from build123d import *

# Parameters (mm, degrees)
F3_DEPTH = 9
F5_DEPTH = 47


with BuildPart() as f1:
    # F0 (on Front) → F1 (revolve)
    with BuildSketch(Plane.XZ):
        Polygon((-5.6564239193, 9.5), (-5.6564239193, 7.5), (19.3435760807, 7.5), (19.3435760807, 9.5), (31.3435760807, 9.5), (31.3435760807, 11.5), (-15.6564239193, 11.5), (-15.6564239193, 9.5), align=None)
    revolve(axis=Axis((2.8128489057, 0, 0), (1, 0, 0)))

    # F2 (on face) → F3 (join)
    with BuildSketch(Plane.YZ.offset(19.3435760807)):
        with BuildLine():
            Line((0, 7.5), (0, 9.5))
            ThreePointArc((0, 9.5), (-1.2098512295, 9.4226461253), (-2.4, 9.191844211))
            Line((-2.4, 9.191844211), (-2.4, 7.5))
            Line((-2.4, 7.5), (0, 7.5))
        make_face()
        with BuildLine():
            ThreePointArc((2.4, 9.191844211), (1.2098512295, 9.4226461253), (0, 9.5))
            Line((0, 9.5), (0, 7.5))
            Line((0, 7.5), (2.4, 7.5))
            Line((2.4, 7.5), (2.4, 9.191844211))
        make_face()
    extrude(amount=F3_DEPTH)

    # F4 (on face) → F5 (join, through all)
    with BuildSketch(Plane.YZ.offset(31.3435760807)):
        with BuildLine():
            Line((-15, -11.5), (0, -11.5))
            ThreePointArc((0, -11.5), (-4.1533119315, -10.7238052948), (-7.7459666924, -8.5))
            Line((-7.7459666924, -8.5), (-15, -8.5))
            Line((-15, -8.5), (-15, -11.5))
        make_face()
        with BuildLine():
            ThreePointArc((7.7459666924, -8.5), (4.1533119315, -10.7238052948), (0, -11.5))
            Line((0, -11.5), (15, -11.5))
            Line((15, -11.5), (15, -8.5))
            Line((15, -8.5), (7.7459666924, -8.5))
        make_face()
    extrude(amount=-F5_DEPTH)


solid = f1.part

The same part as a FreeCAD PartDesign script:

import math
import FreeCAD as App
import Part
import Sketcher

V = App.Vector

doc = App.newDocument("Part")
params = doc.addObject("Spreadsheet::Sheet", "Params")
for row, (alias, value) in enumerate([
    ("sketch1_width", "25 mm"),
    ("sketch1_width2", "12 mm"),
    ("sketch1_width3", "47 mm"),
    ("sketch1_height", "2 mm"),
    ("revolution_angle", "360 deg"),
    ("sketch2_radius", "9.5 mm"),
    ("sketch2_width", "4.8 mm"),
    ("pad1_length", "9 mm"),
    ("sketch3_radius", "11.5 mm"),
    ("sketch3_width", "15 mm"),
    ("sketch3_height", "3 mm"),
], start=1):
    params.set(f"A{row}", alias)
    params.set(f"B{row}", "=" + value)
    params.setAlias(f"B{row}", alias)

body = doc.addObject("PartDesign::Body", "Body")

# Sketch on XZ plane
sketch1 = body.newObject("Sketcher::SketchObject", "Sketch")
sketch1.AttachmentSupport = (doc.getObject("XZ_Plane"), [""])
sketch1.MapMode = "FlatFace"
sketch1.addGeometry([
    Part.LineSegment(V(-5.7, 9.5, 0), V(-5.7, 7.5, 0)),  # 0
    Part.LineSegment(V(-5.7, 7.5, 0), V(19.3, 7.5, 0)),  # 1
    Part.LineSegment(V(19.3, 7.5, 0), V(19.3, 9.5, 0)),  # 2
    Part.LineSegment(V(19.3, 9.5, 0), V(31.3, 9.5, 0)),  # 3
    Part.LineSegment(V(31.3, 9.5, 0), V(31.3, 11.5, 0)),  # 4
    Part.LineSegment(V(31.3, 11.5, 0), V(-15.7, 11.5, 0)),  # 5
    Part.LineSegment(V(-15.7, 11.5, 0), V(-15.7, 9.5, 0)),  # 6
    Part.LineSegment(V(-15.7, 9.5, 0), V(-5.7, 9.5, 0)),  # 7
], False)
sketch1.addConstraint([
    Sketcher.Constraint("Coincident", 0, 2, 1, 1),
    Sketcher.Constraint("Coincident", 1, 2, 2, 1),
    Sketcher.Constraint("Coincident", 2, 2, 3, 1),
    Sketcher.Constraint("Coincident", 3, 2, 4, 1),
    Sketcher.Constraint("Coincident", 4, 2, 5, 1),
    Sketcher.Constraint("Coincident", 5, 2, 6, 1),
    Sketcher.Constraint("Coincident", 6, 2, 7, 1),
    Sketcher.Constraint("Coincident", 7, 2, 0, 1),
    Sketcher.Constraint("Vertical", 0),
    Sketcher.Constraint("Horizontal", 1),
    Sketcher.Constraint("Vertical", 2),
    Sketcher.Constraint("Horizontal", 3),
    Sketcher.Constraint("Vertical", 4),
    Sketcher.Constraint("Horizontal", 5),
    Sketcher.Constraint("Vertical", 6),
    Sketcher.Constraint("Horizontal", 7),
    Sketcher.Constraint("Horizontal", 3, 2, 6, 2),
    Sketcher.Constraint("Equal", 2, 4),
    Sketcher.Constraint("DistanceX", 1, 1, 1, 2, 25.0),
    Sketcher.Constraint("DistanceX", 3, 1, 3, 2, 12.0),
    Sketcher.Constraint("DistanceX", 5, 2, 5, 1, 47.0),
    Sketcher.Constraint("DistanceY", 0, 2, 0, 1, 2.0),
    Sketcher.Constraint("DistanceY", -1, 1, 0, 2, 7.5),
    Sketcher.Constraint("DistanceX", 0, 2, -1, 1, 5.656424),
])
sketch1.setExpression("Constraints[18]", "Params.sketch1_width")
sketch1.setExpression("Constraints[19]", "Params.sketch1_width2")
sketch1.setExpression("Constraints[20]", "Params.sketch1_width3")
sketch1.setExpression("Constraints[21]", "Params.sketch1_height")
revolution = body.newObject("PartDesign::Revolution", "Revolution")
revolution.Profile = sketch1
revolution.ReferenceAxis = (sketch1, ["H_Axis"])
revolution.setExpression("Angle", "Params.revolution_angle")

# Sketch on YZ plane
sketch2 = body.newObject("Sketcher::SketchObject", "Sketch001")
sketch2.AttachmentSupport = (doc.getObject("YZ_Plane"), [""])
sketch2.MapMode = "FlatFace"
sketch2.AttachmentOffset = App.Placement(V(0, 0, 19.343576), App.Rotation())
sketch2.addGeometry([
    Part.ArcOfCircle(Part.Circle(V(0, 0, 0), V(0, 0, 1), 9.5), math.radians(90), math.radians(104.63)),  # 0
    Part.LineSegment(V(-2.4, 9.2, 0), V(-2.4, 7.5, 0)),  # 1
    Part.LineSegment(V(-2.4, 7.5, 0), V(2.4, 7.5, 0)),  # 2
    Part.LineSegment(V(2.4, 7.5, 0), V(2.4, 9.2, 0)),  # 3
    Part.ArcOfCircle(Part.Circle(V(0, 0, 0), V(0, 0, 1), 9.5), math.radians(75.37), math.radians(90)),  # 4
], False)
sketch2.addConstraint([
    Sketcher.Constraint("Coincident", 0, 2, 1, 1),
    Sketcher.Constraint("Coincident", 1, 2, 2, 1),
    Sketcher.Constraint("Coincident", 2, 2, 3, 1),
    Sketcher.Constraint("Coincident", 3, 2, 4, 1),
    Sketcher.Constraint("Tangent", 4, 2, 0, 1),
    Sketcher.Constraint("Vertical", 1),
    Sketcher.Constraint("Horizontal", 2),
    Sketcher.Constraint("Vertical", 3),
    Sketcher.Constraint("Coincident", 0, 3, -1, 1),
    Sketcher.Constraint("Equal", 0, 4),
    Sketcher.Constraint("PointOnObject", 4, 2, -2),
    Sketcher.Constraint("Horizontal", 0, 2, 3, 2),
    Sketcher.Constraint("Radius", 0, 9.5),
    Sketcher.Constraint("DistanceX", 2, 1, 2, 2, 4.8),
    Sketcher.Constraint("DistanceY", 2, 2, 4, 2, 2.0),
])
sketch2.setExpression("Constraints[12]", "Params.sketch2_radius")
sketch2.setExpression("Constraints[13]", "Params.sketch2_width")
pad1 = body.newObject("PartDesign::Pad", "Pad")
pad1.Profile = sketch2
pad1.setExpression("Length", "Params.pad1_length")

# Sketch on YZ plane
sketch3 = body.newObject("Sketcher::SketchObject", "Sketch002")
sketch3.AttachmentSupport = (doc.getObject("YZ_Plane"), [""])
sketch3.MapMode = "FlatFace"
sketch3.AttachmentOffset = App.Placement(V(0, 0, 31.343576), App.Rotation())
sketch3.addGeometry([
    Part.LineSegment(V(-15, -11.5, 0), V(0, -11.5, 0)),  # 0
    Part.ArcOfCircle(Part.Circle(V(0, 0, 0), V(0, 0, 1), 11.5), math.radians(-132), math.radians(-90)),  # 1
    Part.LineSegment(V(-7.7, -8.5, 0), V(-15, -8.5, 0)),  # 2
    Part.LineSegment(V(-15, -8.5, 0), V(-15, -11.5, 0)),  # 3
    Part.ArcOfCircle(Part.Circle(V(0, 0, 0), V(0, 0, 1), 11.5), math.radians(-90), math.radians(-48)),  # 4
    Part.LineSegment(V(0, -11.5, 0), V(15, -11.5, 0)),  # 5
    Part.LineSegment(V(15, -11.5, 0), V(15, -8.5, 0)),  # 6
    Part.LineSegment(V(15, -8.5, 0), V(7.7, -8.5, 0)),  # 7
], False)
sketch3.addConstraint([
    Sketcher.Constraint("Tangent", 0, 2, 1, 2),
    Sketcher.Constraint("Coincident", 1, 1, 2, 1),
    Sketcher.Constraint("Coincident", 2, 2, 3, 1),
    Sketcher.Constraint("Coincident", 3, 2, 0, 1),
    Sketcher.Constraint("Tangent", 4, 1, 5, 1),
    Sketcher.Constraint("Coincident", 5, 2, 6, 1),
    Sketcher.Constraint("Coincident", 6, 2, 7, 1),
    Sketcher.Constraint("Coincident", 7, 2, 4, 2),
    Sketcher.Constraint("Horizontal", 0),
    Sketcher.Constraint("Horizontal", 2),
    Sketcher.Constraint("Vertical", 3),
    Sketcher.Constraint("Horizontal", 5),
    Sketcher.Constraint("Vertical", 6),
    Sketcher.Constraint("Horizontal", 7),
    Sketcher.Constraint("Coincident", 1, 3, -1, 1),
    Sketcher.Constraint("Coincident", 4, 3, -1, 1),
    Sketcher.Constraint("Equal", 1, 4),
    Sketcher.Constraint("Symmetric", 2, 2, 6, 2, -2),
    Sketcher.Constraint("Radius", 1, 11.5),
    Sketcher.Constraint("DistanceX", 0, 1, 0, 2, 15.0),
    Sketcher.Constraint("DistanceY", 3, 2, 3, 1, 3.0),
])
sketch3.setExpression("Constraints[18]", "Params.sketch3_radius")
sketch3.setExpression("Constraints[19]", "Params.sketch3_width")
sketch3.setExpression("Constraints[20]", "Params.sketch3_height")
pad2 = body.newObject("PartDesign::Pad", "Pad001")
pad2.Profile = sketch3
pad2.Type = "UpToLast"
pad2.Reversed = True

doc.recompute()
